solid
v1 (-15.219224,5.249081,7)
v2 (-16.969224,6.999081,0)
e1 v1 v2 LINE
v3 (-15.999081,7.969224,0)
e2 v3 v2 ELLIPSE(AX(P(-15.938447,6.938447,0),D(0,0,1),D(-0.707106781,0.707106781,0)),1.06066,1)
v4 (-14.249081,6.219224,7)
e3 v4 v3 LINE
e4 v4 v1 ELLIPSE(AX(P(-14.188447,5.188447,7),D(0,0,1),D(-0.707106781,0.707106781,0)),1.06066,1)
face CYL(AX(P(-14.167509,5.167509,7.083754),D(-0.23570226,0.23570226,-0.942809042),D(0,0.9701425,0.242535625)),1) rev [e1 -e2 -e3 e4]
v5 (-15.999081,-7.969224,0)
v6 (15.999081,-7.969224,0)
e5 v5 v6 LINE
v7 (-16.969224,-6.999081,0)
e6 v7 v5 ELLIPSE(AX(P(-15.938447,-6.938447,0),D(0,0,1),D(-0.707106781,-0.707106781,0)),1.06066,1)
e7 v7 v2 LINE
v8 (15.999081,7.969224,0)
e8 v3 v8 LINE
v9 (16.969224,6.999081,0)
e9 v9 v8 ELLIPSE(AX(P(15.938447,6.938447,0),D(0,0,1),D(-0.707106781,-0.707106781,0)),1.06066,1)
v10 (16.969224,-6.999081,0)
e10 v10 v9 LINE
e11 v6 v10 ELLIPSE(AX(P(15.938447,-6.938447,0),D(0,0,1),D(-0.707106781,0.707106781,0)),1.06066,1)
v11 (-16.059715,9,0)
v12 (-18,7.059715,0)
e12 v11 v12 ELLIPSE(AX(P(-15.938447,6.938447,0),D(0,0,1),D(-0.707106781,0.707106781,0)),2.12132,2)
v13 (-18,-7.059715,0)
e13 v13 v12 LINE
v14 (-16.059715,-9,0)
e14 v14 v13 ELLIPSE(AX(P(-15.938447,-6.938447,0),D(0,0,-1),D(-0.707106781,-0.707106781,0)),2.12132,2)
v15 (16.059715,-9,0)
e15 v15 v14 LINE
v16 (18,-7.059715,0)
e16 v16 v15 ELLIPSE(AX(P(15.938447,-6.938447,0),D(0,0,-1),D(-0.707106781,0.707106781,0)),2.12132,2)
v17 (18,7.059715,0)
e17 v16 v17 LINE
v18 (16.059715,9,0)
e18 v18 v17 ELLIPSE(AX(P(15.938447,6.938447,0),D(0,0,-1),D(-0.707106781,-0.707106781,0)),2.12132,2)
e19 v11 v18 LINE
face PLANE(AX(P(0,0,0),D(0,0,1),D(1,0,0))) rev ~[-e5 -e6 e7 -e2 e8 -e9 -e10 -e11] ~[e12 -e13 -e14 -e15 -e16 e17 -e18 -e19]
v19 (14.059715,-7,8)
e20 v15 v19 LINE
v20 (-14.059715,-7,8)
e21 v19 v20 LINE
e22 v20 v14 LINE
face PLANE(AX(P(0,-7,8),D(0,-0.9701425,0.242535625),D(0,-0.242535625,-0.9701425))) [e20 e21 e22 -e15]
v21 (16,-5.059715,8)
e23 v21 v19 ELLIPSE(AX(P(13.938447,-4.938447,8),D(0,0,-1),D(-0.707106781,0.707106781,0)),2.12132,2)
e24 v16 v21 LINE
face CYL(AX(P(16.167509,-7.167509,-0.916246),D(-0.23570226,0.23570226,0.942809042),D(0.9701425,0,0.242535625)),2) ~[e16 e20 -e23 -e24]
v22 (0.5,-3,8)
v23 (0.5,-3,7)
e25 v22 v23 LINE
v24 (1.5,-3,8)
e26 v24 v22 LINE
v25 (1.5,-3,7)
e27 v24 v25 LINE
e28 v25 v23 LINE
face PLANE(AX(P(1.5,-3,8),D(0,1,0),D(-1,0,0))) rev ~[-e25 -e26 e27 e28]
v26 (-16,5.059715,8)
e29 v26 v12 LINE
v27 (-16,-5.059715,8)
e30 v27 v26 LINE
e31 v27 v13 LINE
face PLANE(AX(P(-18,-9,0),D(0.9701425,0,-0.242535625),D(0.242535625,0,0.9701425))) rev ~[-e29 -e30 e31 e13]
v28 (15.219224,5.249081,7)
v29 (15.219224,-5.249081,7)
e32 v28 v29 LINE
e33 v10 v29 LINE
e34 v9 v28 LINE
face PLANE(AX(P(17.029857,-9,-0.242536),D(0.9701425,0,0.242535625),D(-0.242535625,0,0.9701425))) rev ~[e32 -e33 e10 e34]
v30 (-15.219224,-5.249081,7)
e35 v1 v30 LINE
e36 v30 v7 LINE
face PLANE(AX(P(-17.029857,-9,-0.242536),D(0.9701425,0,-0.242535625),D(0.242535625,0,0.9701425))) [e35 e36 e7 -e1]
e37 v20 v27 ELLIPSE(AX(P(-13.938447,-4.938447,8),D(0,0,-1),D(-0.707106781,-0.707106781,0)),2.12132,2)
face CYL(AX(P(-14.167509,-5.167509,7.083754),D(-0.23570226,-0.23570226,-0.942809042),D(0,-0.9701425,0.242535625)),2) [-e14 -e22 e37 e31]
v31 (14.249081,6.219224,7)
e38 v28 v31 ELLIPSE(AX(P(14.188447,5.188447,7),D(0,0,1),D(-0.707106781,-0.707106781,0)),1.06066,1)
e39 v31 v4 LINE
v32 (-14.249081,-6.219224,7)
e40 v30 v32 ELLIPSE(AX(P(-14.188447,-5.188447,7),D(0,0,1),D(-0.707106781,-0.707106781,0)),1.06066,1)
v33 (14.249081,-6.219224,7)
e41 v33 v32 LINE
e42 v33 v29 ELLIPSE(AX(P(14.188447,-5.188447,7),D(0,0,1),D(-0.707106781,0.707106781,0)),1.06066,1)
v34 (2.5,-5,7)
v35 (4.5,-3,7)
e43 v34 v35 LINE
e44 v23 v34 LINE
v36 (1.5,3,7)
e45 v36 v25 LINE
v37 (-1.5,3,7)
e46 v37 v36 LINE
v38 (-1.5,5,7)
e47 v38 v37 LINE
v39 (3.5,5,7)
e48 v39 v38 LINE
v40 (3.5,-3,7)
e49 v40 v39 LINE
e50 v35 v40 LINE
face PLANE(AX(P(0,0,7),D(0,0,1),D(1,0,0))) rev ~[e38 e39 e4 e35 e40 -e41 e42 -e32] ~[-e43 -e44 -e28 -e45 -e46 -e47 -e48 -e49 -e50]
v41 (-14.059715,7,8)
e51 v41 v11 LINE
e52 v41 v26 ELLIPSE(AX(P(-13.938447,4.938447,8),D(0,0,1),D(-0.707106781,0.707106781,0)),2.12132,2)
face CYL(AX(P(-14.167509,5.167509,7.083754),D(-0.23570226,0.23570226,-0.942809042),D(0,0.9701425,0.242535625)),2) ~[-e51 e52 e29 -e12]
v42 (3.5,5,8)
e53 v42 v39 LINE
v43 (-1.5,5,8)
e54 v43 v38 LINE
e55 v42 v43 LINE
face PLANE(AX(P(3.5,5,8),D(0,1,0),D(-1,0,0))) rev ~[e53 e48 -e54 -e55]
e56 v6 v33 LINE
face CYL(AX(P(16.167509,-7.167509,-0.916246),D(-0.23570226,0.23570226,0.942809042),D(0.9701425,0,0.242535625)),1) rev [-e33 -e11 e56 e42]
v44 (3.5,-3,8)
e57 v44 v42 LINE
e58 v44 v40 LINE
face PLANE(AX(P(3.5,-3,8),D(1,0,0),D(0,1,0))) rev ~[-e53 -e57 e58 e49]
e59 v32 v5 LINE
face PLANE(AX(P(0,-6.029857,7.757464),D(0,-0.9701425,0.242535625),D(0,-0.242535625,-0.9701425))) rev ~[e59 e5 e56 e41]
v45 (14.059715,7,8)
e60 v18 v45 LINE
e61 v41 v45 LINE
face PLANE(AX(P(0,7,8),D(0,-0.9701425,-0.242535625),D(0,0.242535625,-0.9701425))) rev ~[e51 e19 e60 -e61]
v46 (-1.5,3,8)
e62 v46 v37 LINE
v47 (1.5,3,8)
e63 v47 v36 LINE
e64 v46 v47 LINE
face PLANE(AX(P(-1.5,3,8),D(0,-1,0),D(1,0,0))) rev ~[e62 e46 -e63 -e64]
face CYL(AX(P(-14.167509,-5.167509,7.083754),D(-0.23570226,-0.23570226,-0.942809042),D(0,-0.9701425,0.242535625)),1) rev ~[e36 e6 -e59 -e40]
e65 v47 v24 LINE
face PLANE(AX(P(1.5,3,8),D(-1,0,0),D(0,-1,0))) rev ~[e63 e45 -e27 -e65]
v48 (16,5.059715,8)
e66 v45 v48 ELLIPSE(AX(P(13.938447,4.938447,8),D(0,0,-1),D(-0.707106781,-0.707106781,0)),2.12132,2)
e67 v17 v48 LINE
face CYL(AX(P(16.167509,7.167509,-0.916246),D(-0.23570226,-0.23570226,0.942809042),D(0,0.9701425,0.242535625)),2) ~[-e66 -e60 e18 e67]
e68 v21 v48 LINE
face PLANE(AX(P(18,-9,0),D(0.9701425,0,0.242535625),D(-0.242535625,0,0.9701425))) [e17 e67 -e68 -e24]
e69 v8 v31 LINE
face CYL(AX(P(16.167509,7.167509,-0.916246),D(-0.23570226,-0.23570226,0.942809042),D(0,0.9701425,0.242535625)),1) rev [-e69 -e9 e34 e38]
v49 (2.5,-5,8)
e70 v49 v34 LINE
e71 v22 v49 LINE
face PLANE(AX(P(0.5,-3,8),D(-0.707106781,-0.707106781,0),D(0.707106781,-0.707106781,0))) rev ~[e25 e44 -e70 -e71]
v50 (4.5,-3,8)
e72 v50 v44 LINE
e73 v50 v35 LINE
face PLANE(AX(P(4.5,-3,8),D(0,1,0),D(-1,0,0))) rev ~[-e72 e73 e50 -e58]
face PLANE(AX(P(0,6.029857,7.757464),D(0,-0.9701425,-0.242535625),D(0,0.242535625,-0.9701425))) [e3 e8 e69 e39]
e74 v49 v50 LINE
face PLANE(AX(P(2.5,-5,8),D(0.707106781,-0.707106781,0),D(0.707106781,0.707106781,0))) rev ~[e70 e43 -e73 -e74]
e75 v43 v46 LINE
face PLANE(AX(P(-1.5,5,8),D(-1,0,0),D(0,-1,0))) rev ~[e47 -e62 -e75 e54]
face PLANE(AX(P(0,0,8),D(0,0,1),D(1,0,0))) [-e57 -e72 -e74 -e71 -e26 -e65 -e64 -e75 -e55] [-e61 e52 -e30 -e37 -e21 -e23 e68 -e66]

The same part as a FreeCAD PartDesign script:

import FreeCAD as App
import Part
import Sketcher
from FreeCAD import Vector
Q = App.Units.Quantity


def edges_at(feature, points):
    """Names of the edges that pass closest to the given points."""
    edges = feature.Shape.Edges
    near = lambda p: min(range(len(edges)), key=lambda i: edges[i].distToShape(Part.Vertex(*p))[0])
    return sorted({f"Edge{near(p) + 1}" for p in points})


def faces_at(feature, points):
    """Names of the faces that lie closest to the given points."""
    faces = feature.Shape.Faces
    near = lambda p: min(range(len(faces)), key=lambda i: faces[i].distToShape(Part.Vertex(*p))[0])
    return sorted({f"Face{near(p) + 1}" for p in points})


def add_polygon(sketch, points):
    """Adds a closed chain of lines whose ends are joined by coincident constraints."""
    first, n = sketch.GeometryCount, len(points)
    for a, b in zip(points, points[1:] + points[:1]):
        sketch.addGeometry(Part.LineSegment(App.Vector(*a, 0), App.Vector(*b, 0)), False)
    for i in range(n):
        sketch.addConstraint(Sketcher.Constraint("Coincident", first + i, 2, first + (i + 1) % n, 1))

doc = App.newDocument("Part")
body = doc.addObject("PartDesign::Body", "Body")

sketch1 = doc.addObject("Sketcher::SketchObject", "Sketch")
body.addObject(sketch1)
sketch1.AttachmentSupport = (doc.XY_Plane, [""])
sketch1.MapMode = "FlatFace"
add_polygon(sketch1, [(-18, 9), (-18, -9), (18, -9), (18, 9)])
sketch1.addConstraint([
    Sketcher.Constraint("Vertical", 0),
    Sketcher.Constraint("Horizontal", 1),
    Sketcher.Constraint("Vertical", 2),
    Sketcher.Constraint("Horizontal", 3),
    Sketcher.Constraint("Symmetric", 0, 2, 2, 2, -1, 1),
    Sketcher.Constraint("DistanceX", 1, 1, 1, 2, Q("36 mm")),
    Sketcher.Constraint("DistanceY", 0, 2, 0, 1, Q("18 mm")),
])
pad1 = doc.addObject("PartDesign::Pad", "Pad")
body.addObject(pad1)
pad1.Profile = sketch1
pad1.Length = 8

sketch2 = doc.addObject("Sketcher::SketchObject", "Sketch001")
body.addObject(sketch2)
sketch2.AttachmentSupport = (doc.XZ_Plane, [""])
sketch2.MapMode = "FlatFace"
sketch2.AttachmentOffset = App.Placement(Vector(0, 0, 9), App.Rotation())
add_polygon(sketch2, [(-18, 8), (-18, 0), (-16, 8)])
add_polygon(sketch2, [(18, 0), (18, 8), (16, 8)])
sketch2.addConstraint([
    Sketcher.Constraint("Vertical", 0),
    Sketcher.Constraint("Horizontal", 2),
    Sketcher.Constraint("Vertical", 3),
    Sketcher.Constraint("Horizontal", 4),
    Sketcher.Constraint("Symmetric", 0, 2, 5, 2, -1, 1),
    Sketcher.Constraint("Symmetric", 1, 2, 4, 2, -2),
    Sketcher.Constraint("PointOnObject", 0, 2, -1),
    Sketcher.Constraint("DistanceX", 2, 2, 2, 1, Q("2 mm")),
    Sketcher.Constraint("DistanceY", 0, 2, 0, 1, Q("8 mm")),
    Sketcher.Constraint("DistanceX", 0, 2, -1, 1, Q("18 mm")),
])
pocket1 = doc.addObject("PartDesign::Pocket", "Pocket")
body.addObject(pocket1)
pocket1.Profile = sketch2
pocket1.Type = "ThroughAll"

sketch3 = doc.addObject("Sketcher::SketchObject", "Sketch002")
body.addObject(sketch3)
sketch3.AttachmentSupport = (doc.YZ_Plane, [""])
sketch3.MapMode = "FlatFace"
add_polygon(sketch3, [(-7, 8), (-9, 8), (-9, 0)])
add_polygon(sketch3, [(9, 8), (7, 8), (9, 0)])
sketch3.addConstraint([
    Sketcher.Constraint("Horizontal", 0),
    Sketcher.Constraint("Vertical", 1),
    Sketcher.Constraint("Horizontal", 3),
    Sketcher.Constraint("Vertical", 5),
    Sketcher.Constraint("Symmetric", 1, 2, 4, 2, -1, 1),
    Sketcher.Constraint("Symmetric", 2, 2, 3, 2, -2),
    Sketcher.Constraint("PointOnObject", 1, 2, -1),
    Sketcher.Constraint("DistanceX", 0, 2, 0, 1, Q("2 mm")),
    Sketcher.Constraint("DistanceY", 1, 2, 1, 1, Q("8 mm")),
    Sketcher.Constraint("DistanceX", 0, 2, -1, 1, Q("9 mm")),
])
pocket2 = doc.addObject("PartDesign::Pocket", "Pocket001")
body.addObject(pocket2)
pocket2.Profile = sketch3
pocket2.Type = "ThroughAll"
pocket2.Midplane = True
doc.recompute()

fillet = doc.addObject("PartDesign::Fillet", "Fillet")
body.addObject(fillet)
fillet.Base = (pocket2, edges_at(pocket2, [
    (-17, 8, 4),
    (-17, -8, 4),
    (17, -8, 4),
    (17, 8, 4),
]))
fillet.Radius = 2
doc.recompute()

thickness = doc.addObject("PartDesign::Thickness", "Thickness")
body.addObject(thickness)
thickness.Base = (fillet, faces_at(fillet, [(0, 0, 0)]))
thickness.Value = 1
thickness.Reversed = True
thickness.Join = "Intersection"

sketch4 = doc.addObject("Sketcher::SketchObject", "Sketch003")
body.addObject(sketch4)
sketch4.AttachmentSupport = (doc.XY_Plane, [""])
sketch4.MapMode = "FlatFace"
sketch4.AttachmentOffset = App.Placement(Vector(0, 0, 8), App.Rotation())
add_polygon(sketch4, [(-1.5, 3), (1.5, 3), (1.5, -3), (0.5, -3), (2.5, -5), (4.5, -3), (3.5, -3), (3.5, 5), (-1.5, 5)])
sketch4.addConstraint([
    Sketcher.Constraint("Horizontal", 0),
    Sketcher.Constraint("Vertical", 1),
    Sketcher.Constraint("Horizontal", 2),
    Sketcher.Constraint("Horizontal", 5),
    Sketcher.Constraint("Vertical", 6),
    Sketcher.Constraint("Horizontal", 7),
    Sketcher.Constraint("Vertical", 8),
    Sketcher.Constraint("Symmetric", 1, 2, 8, 2, -1, 1),
    Sketcher.Constraint("Perpendicular", 3, 4),
    Sketcher.Constraint("Horizontal", 2, 2, 4, 2),
    Sketcher.Constraint("Equal", 2, 5),
    Sketcher.Constraint("Equal", 3, 4),
    Sketcher.Constraint("DistanceX", 0, 1, 0, 2, Q("3 mm")),
    Sketcher.Constraint("DistanceX", 2, 2, 2, 1, Q("1 mm")),
    Sketcher.Constraint("DistanceX", 7, 2, 7, 1, Q("5 mm")),
    Sketcher.Constraint("DistanceY", 1, 2, 1, 1, Q("6 mm")),
    Sketcher.Constraint("DistanceY", 6, 1, 6, 2, Q("8 mm")),
])
pocket3 = doc.addObject("PartDesign::Pocket", "Pocket002")
body.addObject(pocket3)
pocket3.Profile = sketch4
pocket3.Length = 1

doc.recompute()
